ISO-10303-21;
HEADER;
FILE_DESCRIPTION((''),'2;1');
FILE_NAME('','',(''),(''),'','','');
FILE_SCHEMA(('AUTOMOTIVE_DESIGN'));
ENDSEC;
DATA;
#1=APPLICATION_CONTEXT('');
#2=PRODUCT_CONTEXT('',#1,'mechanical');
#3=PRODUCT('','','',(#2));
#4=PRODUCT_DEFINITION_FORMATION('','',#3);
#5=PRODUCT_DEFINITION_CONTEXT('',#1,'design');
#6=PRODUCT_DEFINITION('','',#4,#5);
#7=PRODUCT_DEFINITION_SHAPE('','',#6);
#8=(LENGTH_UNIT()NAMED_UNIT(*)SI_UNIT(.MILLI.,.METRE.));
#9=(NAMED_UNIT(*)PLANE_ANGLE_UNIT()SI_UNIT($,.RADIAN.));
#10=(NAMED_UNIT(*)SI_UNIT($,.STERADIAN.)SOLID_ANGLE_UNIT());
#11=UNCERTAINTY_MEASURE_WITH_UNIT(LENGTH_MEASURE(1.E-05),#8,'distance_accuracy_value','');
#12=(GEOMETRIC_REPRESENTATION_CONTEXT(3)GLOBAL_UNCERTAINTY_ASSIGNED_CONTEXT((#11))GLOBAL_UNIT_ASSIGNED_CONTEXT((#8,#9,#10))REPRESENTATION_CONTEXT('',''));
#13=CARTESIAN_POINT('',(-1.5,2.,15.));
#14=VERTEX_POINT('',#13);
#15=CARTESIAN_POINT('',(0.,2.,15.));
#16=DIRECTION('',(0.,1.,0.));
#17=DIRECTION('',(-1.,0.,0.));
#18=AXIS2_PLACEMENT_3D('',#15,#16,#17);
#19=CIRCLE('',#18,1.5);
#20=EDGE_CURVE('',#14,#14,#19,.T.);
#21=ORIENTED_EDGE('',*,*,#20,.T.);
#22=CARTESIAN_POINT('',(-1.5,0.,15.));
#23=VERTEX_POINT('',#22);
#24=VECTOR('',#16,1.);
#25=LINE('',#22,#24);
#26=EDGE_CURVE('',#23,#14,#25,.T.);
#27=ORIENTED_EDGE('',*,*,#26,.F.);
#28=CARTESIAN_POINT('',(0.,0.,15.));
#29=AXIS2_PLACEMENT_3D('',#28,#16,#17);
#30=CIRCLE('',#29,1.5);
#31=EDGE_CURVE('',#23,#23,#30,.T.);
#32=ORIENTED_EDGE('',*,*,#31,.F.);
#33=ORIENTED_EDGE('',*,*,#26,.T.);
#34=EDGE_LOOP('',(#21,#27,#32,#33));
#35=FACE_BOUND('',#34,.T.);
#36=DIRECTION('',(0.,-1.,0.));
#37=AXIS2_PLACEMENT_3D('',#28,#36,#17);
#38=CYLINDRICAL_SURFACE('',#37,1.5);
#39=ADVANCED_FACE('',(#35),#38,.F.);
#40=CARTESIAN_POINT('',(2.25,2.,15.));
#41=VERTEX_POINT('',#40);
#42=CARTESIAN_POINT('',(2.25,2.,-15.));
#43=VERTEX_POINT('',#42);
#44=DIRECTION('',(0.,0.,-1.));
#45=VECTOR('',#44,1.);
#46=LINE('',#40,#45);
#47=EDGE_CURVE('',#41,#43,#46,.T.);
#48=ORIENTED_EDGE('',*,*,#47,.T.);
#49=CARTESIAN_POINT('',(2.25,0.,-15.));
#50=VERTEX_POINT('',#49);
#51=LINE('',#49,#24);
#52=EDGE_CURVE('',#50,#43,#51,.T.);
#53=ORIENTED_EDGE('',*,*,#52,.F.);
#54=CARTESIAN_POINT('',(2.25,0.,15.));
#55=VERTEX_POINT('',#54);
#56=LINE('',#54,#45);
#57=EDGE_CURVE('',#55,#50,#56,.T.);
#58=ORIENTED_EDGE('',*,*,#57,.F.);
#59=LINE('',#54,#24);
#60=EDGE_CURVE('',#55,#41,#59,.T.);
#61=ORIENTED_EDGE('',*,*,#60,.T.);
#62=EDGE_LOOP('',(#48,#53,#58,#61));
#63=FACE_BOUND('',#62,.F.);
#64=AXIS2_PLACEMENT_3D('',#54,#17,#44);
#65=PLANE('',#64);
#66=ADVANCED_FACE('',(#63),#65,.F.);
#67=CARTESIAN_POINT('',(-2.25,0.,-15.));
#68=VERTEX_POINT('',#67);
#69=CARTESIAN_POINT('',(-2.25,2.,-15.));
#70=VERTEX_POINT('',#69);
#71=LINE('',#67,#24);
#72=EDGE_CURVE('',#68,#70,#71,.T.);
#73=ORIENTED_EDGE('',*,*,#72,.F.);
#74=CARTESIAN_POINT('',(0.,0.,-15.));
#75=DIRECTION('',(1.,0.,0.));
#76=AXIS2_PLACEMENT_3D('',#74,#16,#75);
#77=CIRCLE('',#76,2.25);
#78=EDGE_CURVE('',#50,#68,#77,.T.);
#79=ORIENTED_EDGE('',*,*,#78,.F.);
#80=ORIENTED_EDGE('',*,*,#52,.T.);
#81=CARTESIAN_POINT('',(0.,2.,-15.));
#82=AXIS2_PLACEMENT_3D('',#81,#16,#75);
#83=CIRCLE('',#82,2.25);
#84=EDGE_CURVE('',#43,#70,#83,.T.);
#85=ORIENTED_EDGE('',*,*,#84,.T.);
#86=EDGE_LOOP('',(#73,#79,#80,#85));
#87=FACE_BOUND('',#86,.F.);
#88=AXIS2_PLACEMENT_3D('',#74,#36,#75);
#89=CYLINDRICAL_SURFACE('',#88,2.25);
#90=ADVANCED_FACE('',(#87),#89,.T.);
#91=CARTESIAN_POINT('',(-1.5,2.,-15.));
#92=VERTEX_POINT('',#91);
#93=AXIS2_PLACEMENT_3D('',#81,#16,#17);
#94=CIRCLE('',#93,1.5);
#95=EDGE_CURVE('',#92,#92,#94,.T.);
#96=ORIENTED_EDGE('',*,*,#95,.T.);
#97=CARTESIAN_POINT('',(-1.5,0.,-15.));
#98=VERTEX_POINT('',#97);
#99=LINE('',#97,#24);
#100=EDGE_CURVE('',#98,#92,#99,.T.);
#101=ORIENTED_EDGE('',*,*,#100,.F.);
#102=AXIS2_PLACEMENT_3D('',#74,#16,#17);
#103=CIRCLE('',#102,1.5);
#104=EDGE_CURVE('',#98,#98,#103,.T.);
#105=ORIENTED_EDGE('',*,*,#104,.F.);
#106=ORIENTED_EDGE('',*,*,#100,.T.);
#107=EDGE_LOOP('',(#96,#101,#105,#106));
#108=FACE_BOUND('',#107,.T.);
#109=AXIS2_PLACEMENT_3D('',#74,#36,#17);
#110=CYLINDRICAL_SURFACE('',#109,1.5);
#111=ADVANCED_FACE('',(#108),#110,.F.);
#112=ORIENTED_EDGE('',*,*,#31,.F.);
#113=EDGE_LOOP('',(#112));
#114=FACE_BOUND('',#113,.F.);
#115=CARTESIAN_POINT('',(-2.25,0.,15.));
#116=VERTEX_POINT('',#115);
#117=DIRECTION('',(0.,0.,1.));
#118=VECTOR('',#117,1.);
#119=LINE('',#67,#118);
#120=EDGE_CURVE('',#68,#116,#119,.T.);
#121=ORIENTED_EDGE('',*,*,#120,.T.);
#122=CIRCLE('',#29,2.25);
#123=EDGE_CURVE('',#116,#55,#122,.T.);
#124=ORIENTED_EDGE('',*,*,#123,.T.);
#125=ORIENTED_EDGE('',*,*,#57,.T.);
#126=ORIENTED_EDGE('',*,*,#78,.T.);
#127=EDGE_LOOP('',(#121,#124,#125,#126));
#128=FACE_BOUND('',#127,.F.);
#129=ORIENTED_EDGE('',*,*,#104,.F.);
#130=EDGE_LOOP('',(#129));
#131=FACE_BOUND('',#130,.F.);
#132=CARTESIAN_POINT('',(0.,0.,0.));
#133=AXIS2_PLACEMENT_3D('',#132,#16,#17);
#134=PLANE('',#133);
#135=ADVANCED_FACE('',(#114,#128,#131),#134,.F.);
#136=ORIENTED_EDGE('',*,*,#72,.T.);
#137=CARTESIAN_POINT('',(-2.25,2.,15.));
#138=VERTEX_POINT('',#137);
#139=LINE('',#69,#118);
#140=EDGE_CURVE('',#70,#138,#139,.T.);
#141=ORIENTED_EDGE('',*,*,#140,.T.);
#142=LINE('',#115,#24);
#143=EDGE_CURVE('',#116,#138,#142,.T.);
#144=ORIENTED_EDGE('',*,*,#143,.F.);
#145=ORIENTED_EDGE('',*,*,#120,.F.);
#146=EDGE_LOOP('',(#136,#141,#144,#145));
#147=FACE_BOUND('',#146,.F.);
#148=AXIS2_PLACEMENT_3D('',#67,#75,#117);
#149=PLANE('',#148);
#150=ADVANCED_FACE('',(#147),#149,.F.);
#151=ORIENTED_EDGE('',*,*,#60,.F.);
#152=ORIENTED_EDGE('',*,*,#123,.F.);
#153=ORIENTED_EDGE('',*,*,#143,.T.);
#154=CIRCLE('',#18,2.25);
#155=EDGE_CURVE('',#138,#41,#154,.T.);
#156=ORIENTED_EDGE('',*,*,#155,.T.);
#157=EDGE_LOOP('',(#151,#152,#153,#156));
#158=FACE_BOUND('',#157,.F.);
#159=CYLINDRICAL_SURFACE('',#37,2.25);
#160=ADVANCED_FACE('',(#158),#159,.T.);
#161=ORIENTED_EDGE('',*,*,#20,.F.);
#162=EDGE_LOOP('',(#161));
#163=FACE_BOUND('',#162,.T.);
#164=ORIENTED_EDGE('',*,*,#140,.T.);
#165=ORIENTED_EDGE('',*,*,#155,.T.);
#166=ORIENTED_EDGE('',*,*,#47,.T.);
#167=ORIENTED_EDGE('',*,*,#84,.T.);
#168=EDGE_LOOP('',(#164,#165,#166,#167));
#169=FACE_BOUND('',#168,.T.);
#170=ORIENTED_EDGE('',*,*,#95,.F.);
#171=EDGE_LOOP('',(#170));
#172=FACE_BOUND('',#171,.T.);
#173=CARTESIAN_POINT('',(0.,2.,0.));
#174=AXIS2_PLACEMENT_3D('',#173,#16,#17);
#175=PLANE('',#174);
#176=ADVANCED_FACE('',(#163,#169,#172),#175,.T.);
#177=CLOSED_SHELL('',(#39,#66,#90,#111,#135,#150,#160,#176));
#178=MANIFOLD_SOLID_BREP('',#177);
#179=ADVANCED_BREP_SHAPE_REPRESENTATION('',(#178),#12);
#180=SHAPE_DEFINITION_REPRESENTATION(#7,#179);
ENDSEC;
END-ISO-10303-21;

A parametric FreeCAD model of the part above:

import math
import FreeCAD as App
import Part
import Sketcher

V = App.Vector
Q = App.Units.Quantity

doc = App.newDocument("Part")
body = doc.addObject("PartDesign::Body", "Body")

sketch1 = body.newObject("Sketcher::SketchObject", "Sketch")
sketch1.AttachmentSupport = (doc.getObject("XZ_Plane"), [""])
sketch1.MapMode = "FlatFace"
sketch1.addGeometry(Part.ArcOfCircle(Part.Circle(V(0, 15, 0), V(0, 0, 1), 2.2), math.radians(0), math.radians(180)), False)
sketch1.addGeometry(Part.LineSegment(V(2.2, 15, 0), V(2.2, -15, 0)), False)
sketch1.addGeometry(Part.ArcOfCircle(Part.Circle(V(0, -15, 0), V(0, 0, 1), 2.2), math.radians(180), math.radians(360)), False)
sketch1.addGeometry(Part.LineSegment(V(-2.2, -15, 0), V(-2.2, 15, 0)), False)
sketch1.addGeometry(Part.Circle(V(0, -15, 0), V(0, 0, 1), 1.5), False)
sketch1.addGeometry(Part.Circle(V(0, 15, 0), V(0, 0, 1), 1.5), False)
sketch1.addConstraint(Sketcher.Constraint("Tangent", 0, 1, 1, 1))
sketch1.addConstraint(Sketcher.Constraint("Tangent", 1, 2, 2, 2))
sketch1.addConstraint(Sketcher.Constraint("Tangent", 2, 1, 3, 1))
sketch1.addConstraint(Sketcher.Constraint("Tangent", 3, 2, 0, 2))
sketch1.addConstraint(Sketcher.Constraint("Vertical", 1))
sketch1.addConstraint(Sketcher.Constraint("Vertical", 3))
sketch1.addConstraint(Sketcher.Constraint("Coincident", 4, 3, 2, 3))
sketch1.addConstraint(Sketcher.Constraint("Coincident", 5, 3, 0, 3))
sketch1.addConstraint(Sketcher.Constraint("Equal", 4, 5))
sketch1.addConstraint(Sketcher.Constraint("Symmetric", 0, 3, 2, 3, -1, 1))
sketch1.addConstraint(Sketcher.Constraint("Diameter", 4, Q("3 mm")))
sketch1.addConstraint(Sketcher.Constraint("DistanceY", 1, 2, 1, 1, Q("30 mm")))
sketch1.addConstraint(Sketcher.Constraint("Radius", 0, Q("2.25 mm")))
pad1 = body.newObject("PartDesign::Pad", "Pad")
pad1.Profile = sketch1
pad1.Length = 2
pad1.Reversed = True

doc.recompute()
